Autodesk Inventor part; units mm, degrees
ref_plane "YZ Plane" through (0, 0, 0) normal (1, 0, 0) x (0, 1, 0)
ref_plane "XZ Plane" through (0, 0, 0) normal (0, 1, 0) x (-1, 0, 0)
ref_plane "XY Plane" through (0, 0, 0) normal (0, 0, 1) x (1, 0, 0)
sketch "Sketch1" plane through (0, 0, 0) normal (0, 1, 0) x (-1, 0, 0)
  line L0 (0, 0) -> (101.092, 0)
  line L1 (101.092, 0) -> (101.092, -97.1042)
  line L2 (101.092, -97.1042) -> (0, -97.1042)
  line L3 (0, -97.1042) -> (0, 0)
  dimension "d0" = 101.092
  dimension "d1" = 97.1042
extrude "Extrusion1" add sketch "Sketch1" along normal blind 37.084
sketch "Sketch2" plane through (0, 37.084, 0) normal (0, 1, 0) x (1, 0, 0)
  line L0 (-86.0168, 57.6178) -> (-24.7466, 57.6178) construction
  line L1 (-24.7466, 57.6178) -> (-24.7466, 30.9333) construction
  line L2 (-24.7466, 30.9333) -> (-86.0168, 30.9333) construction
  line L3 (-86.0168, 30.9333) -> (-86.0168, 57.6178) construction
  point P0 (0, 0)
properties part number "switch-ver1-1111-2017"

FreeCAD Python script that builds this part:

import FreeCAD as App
import Part
import Sketcher

V = App.Vector
Q = App.Units.Quantity

doc = App.newDocument("Part")
body = doc.addObject("PartDesign::Body", "Body")

# Sketch on XZ plane
sketch1 = body.newObject("Sketcher::SketchObject", "Sketch")
sketch1.AttachmentSupport = (doc.getObject("XZ_Plane"), [""])
sketch1.MapMode = "FlatFace"
sketch1.addGeometry([
    Part.LineSegment(V(-101, 0, 0), V(0, 0, 0)),
    Part.LineSegment(V(0, 0, 0), V(0, -97, 0)),
    Part.LineSegment(V(0, -97, 0), V(-101, -97, 0)),
    Part.LineSegment(V(-101, -97, 0), V(-101, 0, 0)),
], False)
sketch1.addConstraint([
    Sketcher.Constraint("Coincident", 0, 2, 1, 1),
    Sketcher.Constraint("Coincident", 1, 2, 2, 1),
    Sketcher.Constraint("Coincident", 2, 2, 3, 1),
    Sketcher.Constraint("Coincident", 3, 2, 0, 1),
    Sketcher.Constraint("Horizontal", 0),
    Sketcher.Constraint("Vertical", 1),
    Sketcher.Constraint("Horizontal", 2),
    Sketcher.Constraint("Vertical", 3),
    Sketcher.Constraint("Coincident", 0, 2, -1, 1),
    Sketcher.Constraint("DistanceX", 0, 1, 0, 2, Q("3.98 in")),
    Sketcher.Constraint("DistanceY", 1, 2, 1, 1, Q("3.823 in")),
])
pad1 = body.newObject("PartDesign::Pad", "Pad")
pad1.Profile = sketch1
pad1.Length = Q("1.46 in")
pad1.Reversed = True

doc.recompute()
